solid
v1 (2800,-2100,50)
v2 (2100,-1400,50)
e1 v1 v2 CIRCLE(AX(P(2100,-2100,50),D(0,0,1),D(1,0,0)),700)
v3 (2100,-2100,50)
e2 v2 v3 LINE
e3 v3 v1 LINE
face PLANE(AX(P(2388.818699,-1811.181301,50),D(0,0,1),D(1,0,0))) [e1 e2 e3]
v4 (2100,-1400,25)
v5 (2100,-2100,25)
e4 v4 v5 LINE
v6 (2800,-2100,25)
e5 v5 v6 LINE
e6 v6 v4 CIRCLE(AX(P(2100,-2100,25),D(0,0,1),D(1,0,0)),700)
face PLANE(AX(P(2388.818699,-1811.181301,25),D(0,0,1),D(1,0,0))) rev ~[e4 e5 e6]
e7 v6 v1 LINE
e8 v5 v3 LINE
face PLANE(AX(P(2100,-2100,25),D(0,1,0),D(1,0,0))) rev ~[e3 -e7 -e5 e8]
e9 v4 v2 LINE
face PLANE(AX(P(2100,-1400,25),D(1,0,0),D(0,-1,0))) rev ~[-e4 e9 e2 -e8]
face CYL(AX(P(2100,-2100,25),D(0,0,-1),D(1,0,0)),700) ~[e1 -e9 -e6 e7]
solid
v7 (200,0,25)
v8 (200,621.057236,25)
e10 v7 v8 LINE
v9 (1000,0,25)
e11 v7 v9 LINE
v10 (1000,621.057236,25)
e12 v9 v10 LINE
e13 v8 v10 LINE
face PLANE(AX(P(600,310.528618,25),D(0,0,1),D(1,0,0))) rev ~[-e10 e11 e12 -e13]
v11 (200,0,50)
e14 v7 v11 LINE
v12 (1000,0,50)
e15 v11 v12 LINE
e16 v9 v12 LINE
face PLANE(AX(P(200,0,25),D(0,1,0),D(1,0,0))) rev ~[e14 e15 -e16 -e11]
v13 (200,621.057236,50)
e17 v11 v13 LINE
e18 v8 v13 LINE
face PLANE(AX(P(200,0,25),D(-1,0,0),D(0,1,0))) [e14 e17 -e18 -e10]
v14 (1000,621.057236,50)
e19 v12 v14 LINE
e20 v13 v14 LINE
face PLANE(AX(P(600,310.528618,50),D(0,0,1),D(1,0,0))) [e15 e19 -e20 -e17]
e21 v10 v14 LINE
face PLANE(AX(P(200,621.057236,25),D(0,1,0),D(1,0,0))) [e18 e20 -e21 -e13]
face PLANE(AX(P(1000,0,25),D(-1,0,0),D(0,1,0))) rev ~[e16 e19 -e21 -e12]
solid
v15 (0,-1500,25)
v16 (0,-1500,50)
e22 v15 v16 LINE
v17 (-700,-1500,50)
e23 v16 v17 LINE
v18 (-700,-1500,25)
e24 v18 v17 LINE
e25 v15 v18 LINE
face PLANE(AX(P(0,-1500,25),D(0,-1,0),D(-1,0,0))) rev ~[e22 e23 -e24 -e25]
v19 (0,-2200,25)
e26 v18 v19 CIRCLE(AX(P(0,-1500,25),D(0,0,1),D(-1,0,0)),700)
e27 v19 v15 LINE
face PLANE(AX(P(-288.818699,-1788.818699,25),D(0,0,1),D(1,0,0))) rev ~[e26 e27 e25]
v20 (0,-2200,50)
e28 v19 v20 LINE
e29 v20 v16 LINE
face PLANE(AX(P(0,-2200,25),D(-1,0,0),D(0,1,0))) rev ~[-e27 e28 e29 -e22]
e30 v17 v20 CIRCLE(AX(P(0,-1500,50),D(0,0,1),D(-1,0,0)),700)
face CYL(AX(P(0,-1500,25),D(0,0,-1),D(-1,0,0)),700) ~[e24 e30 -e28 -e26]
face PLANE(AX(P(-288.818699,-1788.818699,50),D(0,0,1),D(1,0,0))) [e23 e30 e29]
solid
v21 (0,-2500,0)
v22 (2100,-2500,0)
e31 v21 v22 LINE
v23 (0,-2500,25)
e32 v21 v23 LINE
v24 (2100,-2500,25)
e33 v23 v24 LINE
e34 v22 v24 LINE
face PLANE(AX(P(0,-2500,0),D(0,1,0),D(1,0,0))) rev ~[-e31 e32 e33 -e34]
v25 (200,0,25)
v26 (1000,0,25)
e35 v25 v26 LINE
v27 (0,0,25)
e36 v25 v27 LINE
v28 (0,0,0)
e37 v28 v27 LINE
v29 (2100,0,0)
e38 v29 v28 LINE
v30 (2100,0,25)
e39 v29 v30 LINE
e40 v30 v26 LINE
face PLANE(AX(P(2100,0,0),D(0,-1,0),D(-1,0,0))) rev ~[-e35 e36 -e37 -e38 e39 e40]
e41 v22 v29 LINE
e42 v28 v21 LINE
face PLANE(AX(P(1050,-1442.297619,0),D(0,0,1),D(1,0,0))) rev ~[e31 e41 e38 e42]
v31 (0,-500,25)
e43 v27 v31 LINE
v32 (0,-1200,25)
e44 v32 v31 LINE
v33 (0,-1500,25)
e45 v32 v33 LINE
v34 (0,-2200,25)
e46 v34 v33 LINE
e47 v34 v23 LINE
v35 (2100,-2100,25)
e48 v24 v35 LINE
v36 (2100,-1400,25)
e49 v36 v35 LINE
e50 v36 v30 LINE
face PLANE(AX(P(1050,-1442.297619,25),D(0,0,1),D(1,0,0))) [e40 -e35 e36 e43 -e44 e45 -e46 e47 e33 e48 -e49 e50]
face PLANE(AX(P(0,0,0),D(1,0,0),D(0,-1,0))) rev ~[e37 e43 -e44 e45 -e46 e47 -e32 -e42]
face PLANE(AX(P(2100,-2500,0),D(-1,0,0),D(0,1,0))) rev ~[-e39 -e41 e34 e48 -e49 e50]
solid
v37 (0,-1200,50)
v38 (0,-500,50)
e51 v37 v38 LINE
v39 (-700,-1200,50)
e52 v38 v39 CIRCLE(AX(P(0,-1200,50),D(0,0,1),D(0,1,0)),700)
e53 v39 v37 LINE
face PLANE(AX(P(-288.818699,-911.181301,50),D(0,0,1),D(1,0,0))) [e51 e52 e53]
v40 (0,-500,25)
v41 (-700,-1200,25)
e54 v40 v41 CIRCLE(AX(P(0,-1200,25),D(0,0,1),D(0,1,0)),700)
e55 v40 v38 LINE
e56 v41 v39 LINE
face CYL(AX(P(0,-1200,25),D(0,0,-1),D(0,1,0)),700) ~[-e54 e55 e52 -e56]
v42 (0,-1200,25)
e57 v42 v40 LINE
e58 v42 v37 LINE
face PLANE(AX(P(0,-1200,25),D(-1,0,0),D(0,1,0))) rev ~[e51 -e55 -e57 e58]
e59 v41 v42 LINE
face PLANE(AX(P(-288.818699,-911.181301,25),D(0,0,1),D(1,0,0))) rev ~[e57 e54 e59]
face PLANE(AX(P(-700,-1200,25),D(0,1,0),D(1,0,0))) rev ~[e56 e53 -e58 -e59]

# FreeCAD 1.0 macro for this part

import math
import FreeCAD as App
import Part
import Sketcher
from FreeCAD import Vector
Q = App.Units.Quantity

doc = App.newDocument("Part")
body = doc.addObject("PartDesign::Body", "Body")
body.AllowCompound = True

# Sketch on XY plane
sketch1 = body.newObject("Sketcher::SketchObject", "Sketch")
sketch1.AttachmentSupport = (doc.getObject("XY_Plane"), [""])
sketch1.MapMode = "FlatFace"
sketch1.addGeometry(Part.LineSegment(Vector(2100, -2500, 0), Vector(2100, 0, 0)), False)
sketch1.addGeometry(Part.LineSegment(Vector(2100, 0, 0), Vector(0, 0, 0)), False)
sketch1.addGeometry(Part.LineSegment(Vector(0, 0, 0), Vector(0, -2500, 0)), False)
sketch1.addGeometry(Part.LineSegment(Vector(0, -2500, 0), Vector(2100, -2500, 0)), False)
sketch1.addConstraint(Sketcher.Constraint("Coincident", 0, 2, 1, 1))
sketch1.addConstraint(Sketcher.Constraint("Coincident", 1, 2, 2, 1))
sketch1.addConstraint(Sketcher.Constraint("Coincident", 2, 2, 3, 1))
sketch1.addConstraint(Sketcher.Constraint("Coincident", 3, 2, 0, 1))
sketch1.addConstraint(Sketcher.Constraint("Vertical", 0))
sketch1.addConstraint(Sketcher.Constraint("Horizontal", 1))
sketch1.addConstraint(Sketcher.Constraint("Vertical", 2))
sketch1.addConstraint(Sketcher.Constraint("Horizontal", 3))
sketch1.addConstraint(Sketcher.Constraint("Coincident", 1, 2, -1, 1))
sketch1.addConstraint(Sketcher.Constraint("DistanceX", 1, 2, 1, 1, Q("2100 mm")))
sketch1.addConstraint(Sketcher.Constraint("DistanceY", 0, 1, 0, 2, Q("2500 mm")))
pad1 = body.newObject("PartDesign::Pad", "Pad")
pad1.Profile = sketch1
pad1.Length = 25

# Sketch on XY plane
sketch2 = body.newObject("Sketcher::SketchObject", "Sketch001")
sketch2.AttachmentSupport = (doc.getObject("XY_Plane"), [""])
sketch2.MapMode = "FlatFace"
sketch2.AttachmentOffset = App.Placement(Vector(0, 0, 25), App.Rotation())
sketch2.addGeometry(Part.LineSegment(Vector(0, -2200, 0), Vector(0, -1500, 0)), False)
sketch2.addGeometry(Part.LineSegment(Vector(0, -1500, 0), Vector(-700, -1500, 0)), False)
sketch2.addGeometry(Part.ArcOfCircle(Part.Circle(Vector(0, -1500, 0), Vector(0, 0, 1), 700), math.radians(180), math.radians(270)), False)
sketch2.addGeometry(Part.LineSegment(Vector(0, -1200, 0), Vector(0, -500, 0)), False)
sketch2.addGeometry(Part.ArcOfCircle(Part.Circle(Vector(0, -1200, 0), Vector(0, 0, 1), 700), math.radians(90), math.radians(180)), False)
sketch2.addGeometry(Part.LineSegment(Vector(-700, -1200, 0), Vector(0, -1200, 0)), False)
sketch2.addGeometry(Part.LineSegment(Vector(200, 621.057236, 0), Vector(200, 0, 0)), False)
sketch2.addGeometry(Part.LineSegment(Vector(200, 0, 0), Vector(1000, 0, 0)), False)
sketch2.addGeometry(Part.LineSegment(Vector(1000, 0, 0), Vector(1000, 621.057236, 0)), False)
sketch2.addGeometry(Part.LineSegment(Vector(1000, 621.057236, 0), Vector(200, 621.057236, 0)), False)
sketch2.addGeometry(Part.ArcOfCircle(Part.Circle(Vector(2100, -2100, 0), Vector(0, 0, 1), 700), math.radians(0), math.radians(90)), False)
sketch2.addGeometry(Part.LineSegment(Vector(2100, -1400, 0), Vector(2100, -2100, 0)), False)
sketch2.addGeometry(Part.LineSegment(Vector(2100, -2100, 0), Vector(2800, -2100, 0)), False)
sketch2.addConstraint(Sketcher.Constraint("Coincident", 0, 2, 1, 1))
sketch2.addConstraint(Sketcher.Constraint("Coincident", 1, 2, 2, 1))
sketch2.addConstraint(Sketcher.Constraint("Coincident", 2, 2, 0, 1))
sketch2.addConstraint(Sketcher.Constraint("Coincident", 3, 2, 4, 1))
sketch2.addConstraint(Sketcher.Constraint("Coincident", 4, 2, 5, 1))
sketch2.addConstraint(Sketcher.Constraint("Coincident", 5, 2, 3, 1))
sketch2.addConstraint(Sketcher.Constraint("Coincident", 6, 2, 7, 1))
sketch2.addConstraint(Sketcher.Constraint("Coincident", 7, 2, 8, 1))
sketch2.addConstraint(Sketcher.Constraint("Coincident", 8, 2, 9, 1))
sketch2.addConstraint(Sketcher.Constraint("Coincident", 9, 2, 6, 1))
sketch2.addConstraint(Sketcher.Constraint("Coincident", 10, 2, 11, 1))
sketch2.addConstraint(Sketcher.Constraint("Coincident", 11, 2, 12, 1))
sketch2.addConstraint(Sketcher.Constraint("Coincident", 12, 2, 10, 1))
sketch2.addConstraint(Sketcher.Constraint("Vertical", 0))
sketch2.addConstraint(Sketcher.Constraint("Horizontal", 1))
sketch2.addConstraint(Sketcher.Constraint("Vertical", 3))
sketch2.addConstraint(Sketcher.Constraint("Horizontal", 5))
sketch2.addConstraint(Sketcher.Constraint("Vertical", 6))
sketch2.addConstraint(Sketcher.Constraint("Horizontal", 7))
sketch2.addConstraint(Sketcher.Constraint("Vertical", 8))
sketch2.addConstraint(Sketcher.Constraint("Horizontal", 9))
sketch2.addConstraint(Sketcher.Constraint("Vertical", 11))
sketch2.addConstraint(Sketcher.Constraint("Horizontal", 12))
sketch2.addConstraint(Sketcher.Constraint("Coincident", 0, 2, 2, 3))
sketch2.addConstraint(Sketcher.Constraint("Coincident", 5, 2, 4, 3))
sketch2.addConstraint(Sketcher.Constraint("Coincident", 11, 2, 10, 3))
sketch2.addConstraint(Sketcher.Constraint("Equal", 2, 4))
sketch2.addConstraint(Sketcher.Constraint("Equal", 4, 10))
sketch2.addConstraint(Sketcher.Constraint("PointOnObject", 2, 3, -2))
sketch2.addConstraint(Sketcher.Constraint("PointOnObject", 4, 3, -2))
sketch2.addConstraint(Sketcher.Constraint("PointOnObject", 6, 2, -1))
sketch2.addConstraint(Sketcher.Constraint("Radius", 2, Q("700 mm")))
sketch2.addConstraint(Sketcher.Constraint("DistanceX", 7, 1, 7, 2, Q("800 mm")))
sketch2.addConstraint(Sketcher.Constraint("DistanceY", 2, 3, -1, 1, Q("1500 mm")))
sketch2.addConstraint(Sketcher.Constraint("DistanceY", 4, 3, -1, 1, Q("1200 mm")))
sketch2.addConstraint(Sketcher.Constraint("DistanceX", -1, 1, 10, 3, Q("2100 mm")))
sketch2.addConstraint(Sketcher.Constraint("DistanceY", 10, 3, -1, 1, Q("2100 mm")))
sketch2.addConstraint(Sketcher.Constraint("DistanceX", -1, 1, 6, 2, Q("200 mm")))
sketch2.addConstraint(Sketcher.Constraint("DistanceY", 6, 2, 6, 1, Q("621.057236 mm")))
pad2 = body.newObject("PartDesign::Pad", "Pad001")
pad2.Profile = sketch2
pad2.Length = 25

doc.recompute()
